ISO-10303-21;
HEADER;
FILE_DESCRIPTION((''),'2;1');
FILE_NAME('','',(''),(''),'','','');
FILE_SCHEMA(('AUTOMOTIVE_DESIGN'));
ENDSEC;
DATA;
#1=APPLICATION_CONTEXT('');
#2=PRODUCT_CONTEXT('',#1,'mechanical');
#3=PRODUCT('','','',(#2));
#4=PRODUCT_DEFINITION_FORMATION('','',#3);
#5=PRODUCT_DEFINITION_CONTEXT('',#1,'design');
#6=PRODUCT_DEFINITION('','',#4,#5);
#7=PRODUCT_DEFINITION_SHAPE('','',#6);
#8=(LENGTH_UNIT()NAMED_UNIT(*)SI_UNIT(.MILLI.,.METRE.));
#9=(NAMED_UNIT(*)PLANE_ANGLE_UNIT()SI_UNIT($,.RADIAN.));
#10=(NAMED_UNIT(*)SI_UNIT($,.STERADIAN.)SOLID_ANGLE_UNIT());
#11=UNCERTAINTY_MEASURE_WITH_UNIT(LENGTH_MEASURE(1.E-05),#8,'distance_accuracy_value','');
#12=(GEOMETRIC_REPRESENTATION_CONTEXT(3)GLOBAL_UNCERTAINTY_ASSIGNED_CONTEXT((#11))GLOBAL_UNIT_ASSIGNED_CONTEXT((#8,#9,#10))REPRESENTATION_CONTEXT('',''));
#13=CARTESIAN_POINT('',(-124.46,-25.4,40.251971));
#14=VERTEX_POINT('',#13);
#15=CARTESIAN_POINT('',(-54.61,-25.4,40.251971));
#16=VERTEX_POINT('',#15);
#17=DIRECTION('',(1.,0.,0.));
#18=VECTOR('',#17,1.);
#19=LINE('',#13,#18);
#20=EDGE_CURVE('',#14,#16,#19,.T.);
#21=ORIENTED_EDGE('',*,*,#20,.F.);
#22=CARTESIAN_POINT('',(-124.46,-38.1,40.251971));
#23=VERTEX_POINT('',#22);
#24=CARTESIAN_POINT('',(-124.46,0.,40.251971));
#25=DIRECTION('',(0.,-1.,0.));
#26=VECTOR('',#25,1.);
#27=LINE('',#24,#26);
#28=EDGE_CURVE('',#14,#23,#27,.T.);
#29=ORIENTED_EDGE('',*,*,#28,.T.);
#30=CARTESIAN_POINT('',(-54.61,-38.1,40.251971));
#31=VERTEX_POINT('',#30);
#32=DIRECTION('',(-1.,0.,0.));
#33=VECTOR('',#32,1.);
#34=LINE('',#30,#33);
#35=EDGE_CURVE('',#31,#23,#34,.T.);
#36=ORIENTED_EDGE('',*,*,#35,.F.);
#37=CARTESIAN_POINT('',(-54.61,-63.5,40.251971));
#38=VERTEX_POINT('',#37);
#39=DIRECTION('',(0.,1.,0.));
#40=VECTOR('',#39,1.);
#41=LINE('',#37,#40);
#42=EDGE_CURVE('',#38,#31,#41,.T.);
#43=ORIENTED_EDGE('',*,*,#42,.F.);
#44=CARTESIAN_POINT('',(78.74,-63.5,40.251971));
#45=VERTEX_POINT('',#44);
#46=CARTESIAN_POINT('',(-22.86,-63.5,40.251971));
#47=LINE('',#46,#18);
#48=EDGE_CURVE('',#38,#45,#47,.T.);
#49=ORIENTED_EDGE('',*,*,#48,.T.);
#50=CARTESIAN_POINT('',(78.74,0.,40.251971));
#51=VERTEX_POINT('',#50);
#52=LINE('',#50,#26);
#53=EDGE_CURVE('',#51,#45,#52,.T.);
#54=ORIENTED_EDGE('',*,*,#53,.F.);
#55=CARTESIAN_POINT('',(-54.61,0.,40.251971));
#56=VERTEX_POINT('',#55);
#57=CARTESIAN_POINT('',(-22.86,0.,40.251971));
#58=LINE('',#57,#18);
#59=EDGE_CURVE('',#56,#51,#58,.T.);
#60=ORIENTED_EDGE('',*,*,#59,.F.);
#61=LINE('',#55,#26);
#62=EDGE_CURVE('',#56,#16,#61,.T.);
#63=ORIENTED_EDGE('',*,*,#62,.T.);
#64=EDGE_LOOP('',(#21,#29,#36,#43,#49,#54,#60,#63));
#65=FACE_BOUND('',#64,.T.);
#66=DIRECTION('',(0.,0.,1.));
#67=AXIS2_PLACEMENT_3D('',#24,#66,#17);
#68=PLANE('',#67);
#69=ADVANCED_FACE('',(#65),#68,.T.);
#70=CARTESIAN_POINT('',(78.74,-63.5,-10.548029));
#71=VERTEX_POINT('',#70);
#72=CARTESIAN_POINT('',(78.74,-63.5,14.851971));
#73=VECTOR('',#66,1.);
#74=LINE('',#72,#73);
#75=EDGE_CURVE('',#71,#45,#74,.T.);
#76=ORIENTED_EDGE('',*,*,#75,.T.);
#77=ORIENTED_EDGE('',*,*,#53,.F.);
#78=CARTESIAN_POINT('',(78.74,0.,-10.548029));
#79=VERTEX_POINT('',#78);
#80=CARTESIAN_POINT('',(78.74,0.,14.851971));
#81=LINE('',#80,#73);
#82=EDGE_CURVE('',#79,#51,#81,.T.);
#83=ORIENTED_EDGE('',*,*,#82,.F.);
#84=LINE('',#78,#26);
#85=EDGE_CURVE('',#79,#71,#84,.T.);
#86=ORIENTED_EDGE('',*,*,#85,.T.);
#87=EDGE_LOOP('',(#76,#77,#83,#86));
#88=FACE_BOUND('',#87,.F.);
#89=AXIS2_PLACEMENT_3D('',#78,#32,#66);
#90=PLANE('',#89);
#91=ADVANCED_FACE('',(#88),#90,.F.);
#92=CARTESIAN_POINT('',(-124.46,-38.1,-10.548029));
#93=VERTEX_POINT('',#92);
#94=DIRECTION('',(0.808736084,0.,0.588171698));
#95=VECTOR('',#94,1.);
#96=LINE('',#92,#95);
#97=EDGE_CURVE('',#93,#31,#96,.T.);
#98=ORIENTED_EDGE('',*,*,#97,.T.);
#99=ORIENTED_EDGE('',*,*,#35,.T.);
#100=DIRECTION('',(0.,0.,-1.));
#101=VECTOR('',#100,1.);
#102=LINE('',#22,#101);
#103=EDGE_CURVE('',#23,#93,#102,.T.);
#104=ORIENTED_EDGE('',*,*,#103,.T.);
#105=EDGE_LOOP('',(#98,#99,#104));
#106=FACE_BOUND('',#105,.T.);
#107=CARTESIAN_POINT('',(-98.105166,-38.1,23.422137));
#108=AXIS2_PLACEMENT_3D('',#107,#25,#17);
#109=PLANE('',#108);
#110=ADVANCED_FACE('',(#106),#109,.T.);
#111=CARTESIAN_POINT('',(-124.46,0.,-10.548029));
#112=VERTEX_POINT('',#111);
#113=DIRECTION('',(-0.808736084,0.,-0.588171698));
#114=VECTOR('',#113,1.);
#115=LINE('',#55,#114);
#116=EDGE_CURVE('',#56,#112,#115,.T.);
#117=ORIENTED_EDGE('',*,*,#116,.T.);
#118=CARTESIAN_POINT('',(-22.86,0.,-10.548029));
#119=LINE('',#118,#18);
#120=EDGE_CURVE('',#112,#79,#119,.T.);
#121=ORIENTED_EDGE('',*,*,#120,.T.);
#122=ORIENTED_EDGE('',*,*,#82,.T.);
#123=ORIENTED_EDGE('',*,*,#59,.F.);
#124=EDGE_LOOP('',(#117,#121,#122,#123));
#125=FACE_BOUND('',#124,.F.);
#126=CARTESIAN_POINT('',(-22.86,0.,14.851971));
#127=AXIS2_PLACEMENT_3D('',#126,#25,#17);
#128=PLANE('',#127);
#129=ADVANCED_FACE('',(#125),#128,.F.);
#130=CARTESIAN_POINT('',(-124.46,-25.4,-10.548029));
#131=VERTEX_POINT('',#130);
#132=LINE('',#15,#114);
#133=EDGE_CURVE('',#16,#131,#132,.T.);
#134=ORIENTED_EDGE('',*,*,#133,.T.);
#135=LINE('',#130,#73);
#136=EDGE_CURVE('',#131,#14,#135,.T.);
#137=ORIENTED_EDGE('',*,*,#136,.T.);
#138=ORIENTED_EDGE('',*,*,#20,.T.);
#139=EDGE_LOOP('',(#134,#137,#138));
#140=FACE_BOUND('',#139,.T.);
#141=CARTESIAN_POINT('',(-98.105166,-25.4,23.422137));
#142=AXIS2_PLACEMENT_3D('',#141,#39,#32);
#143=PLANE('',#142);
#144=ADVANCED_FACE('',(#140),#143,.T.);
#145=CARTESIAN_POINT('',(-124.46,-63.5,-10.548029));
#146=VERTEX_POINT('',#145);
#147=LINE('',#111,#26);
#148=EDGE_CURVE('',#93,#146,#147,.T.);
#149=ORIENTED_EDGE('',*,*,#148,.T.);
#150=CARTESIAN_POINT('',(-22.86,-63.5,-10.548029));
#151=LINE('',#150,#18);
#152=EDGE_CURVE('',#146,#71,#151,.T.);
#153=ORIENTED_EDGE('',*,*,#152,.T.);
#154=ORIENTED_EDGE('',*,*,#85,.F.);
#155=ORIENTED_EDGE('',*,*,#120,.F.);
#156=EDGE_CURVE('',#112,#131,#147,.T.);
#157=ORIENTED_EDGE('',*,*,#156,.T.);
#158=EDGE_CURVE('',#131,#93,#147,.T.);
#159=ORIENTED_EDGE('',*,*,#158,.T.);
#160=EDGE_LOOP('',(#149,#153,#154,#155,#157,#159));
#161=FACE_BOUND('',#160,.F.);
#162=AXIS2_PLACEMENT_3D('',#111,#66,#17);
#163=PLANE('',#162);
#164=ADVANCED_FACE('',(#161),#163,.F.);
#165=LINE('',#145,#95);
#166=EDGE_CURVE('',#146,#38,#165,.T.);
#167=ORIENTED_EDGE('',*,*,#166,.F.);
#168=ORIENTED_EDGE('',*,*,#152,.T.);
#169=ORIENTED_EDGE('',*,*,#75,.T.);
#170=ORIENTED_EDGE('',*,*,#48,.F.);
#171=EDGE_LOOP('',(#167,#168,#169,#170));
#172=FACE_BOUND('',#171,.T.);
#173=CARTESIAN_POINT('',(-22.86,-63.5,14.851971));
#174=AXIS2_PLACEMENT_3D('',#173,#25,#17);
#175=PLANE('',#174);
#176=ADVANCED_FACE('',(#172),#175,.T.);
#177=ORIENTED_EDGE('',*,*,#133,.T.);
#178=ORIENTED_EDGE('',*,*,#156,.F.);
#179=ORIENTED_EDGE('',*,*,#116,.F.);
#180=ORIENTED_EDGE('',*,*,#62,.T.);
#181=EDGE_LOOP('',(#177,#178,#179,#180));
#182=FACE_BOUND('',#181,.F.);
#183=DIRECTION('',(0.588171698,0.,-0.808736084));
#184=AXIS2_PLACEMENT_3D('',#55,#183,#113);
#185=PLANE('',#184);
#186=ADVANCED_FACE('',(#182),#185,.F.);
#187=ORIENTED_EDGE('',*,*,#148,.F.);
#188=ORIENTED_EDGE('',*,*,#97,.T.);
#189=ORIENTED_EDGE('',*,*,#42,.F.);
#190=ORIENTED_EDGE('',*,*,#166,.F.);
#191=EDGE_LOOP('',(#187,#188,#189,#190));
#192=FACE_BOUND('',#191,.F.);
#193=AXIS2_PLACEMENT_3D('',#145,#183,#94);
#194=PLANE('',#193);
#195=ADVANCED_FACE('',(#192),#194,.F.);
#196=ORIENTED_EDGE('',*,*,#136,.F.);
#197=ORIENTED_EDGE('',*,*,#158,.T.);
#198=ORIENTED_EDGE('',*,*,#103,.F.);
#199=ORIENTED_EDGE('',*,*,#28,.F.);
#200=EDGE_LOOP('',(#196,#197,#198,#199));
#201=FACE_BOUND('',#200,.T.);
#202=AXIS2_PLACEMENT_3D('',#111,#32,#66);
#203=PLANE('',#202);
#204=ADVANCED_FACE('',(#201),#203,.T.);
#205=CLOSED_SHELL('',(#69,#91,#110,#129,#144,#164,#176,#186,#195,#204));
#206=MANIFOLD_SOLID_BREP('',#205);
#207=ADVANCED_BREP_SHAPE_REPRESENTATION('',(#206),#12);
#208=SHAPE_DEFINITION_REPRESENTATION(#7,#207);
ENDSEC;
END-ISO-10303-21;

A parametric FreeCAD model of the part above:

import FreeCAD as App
import Part
import Sketcher

V = App.Vector
Q = App.Units.Quantity


def add_polygon(sketch, points):
    """Adds a closed chain of lines whose ends are joined by coincident constraints."""
    first, n = sketch.GeometryCount, len(points)
    for a, b in zip(points, points[1:] + points[:1]):
        sketch.addGeometry(Part.LineSegment(App.Vector(*a, 0), App.Vector(*b, 0)), False)
    for i in range(n):
        sketch.addConstraint(Sketcher.Constraint("Coincident", first + i, 2, first + (i + 1) % n, 1))

doc = App.newDocument("Part")
body = doc.addObject("PartDesign::Body", "Body")

sketch1 = body.newObject("Sketcher::SketchObject", "Sketch")
sketch1.AttachmentSupport = (doc.getObject("XZ_Plane"), [""])
sketch1.MapMode = "FlatFace"
add_polygon(sketch1, [(-124, 40), (-124, -11), (79, -11), (79, 40)])
sketch1.addConstraint(Sketcher.Constraint("Vertical", 0))
sketch1.addConstraint(Sketcher.Constraint("Horizontal", 1))
sketch1.addConstraint(Sketcher.Constraint("Vertical", 2))
sketch1.addConstraint(Sketcher.Constraint("Horizontal", 3))
sketch1.addConstraint(Sketcher.Constraint("DistanceX", 1, 1, 1, 2, Q("8 in")))
sketch1.addConstraint(Sketcher.Constraint("DistanceY", 0, 2, 0, 1, Q("2 in")))
sketch1.addConstraint(Sketcher.Constraint("DistanceX", 0, 2, -1, 1, Q("4.9 in")))
sketch1.addConstraint(Sketcher.Constraint("DistanceY", 0, 2, -1, 1, 10.548029))
pad1 = body.newObject("PartDesign::Pad", "Pad")
pad1.Profile = sketch1
pad1.Length = Q("2.5 in")

sketch2 = body.newObject("Sketcher::SketchObject", "Sketch001")
sketch2.AttachmentSupport = (doc.getObject("XZ_Plane"), [""])
sketch2.MapMode = "FlatFace"
sketch2.AttachmentOffset = App.Placement(V(0, 0, 2.5 * 25.4), App.Rotation())
add_polygon(sketch2, [(-124, 40), (-124, -11), (-55, 40)])
sketch2.addConstraint(Sketcher.Constraint("Vertical", 0))
sketch2.addConstraint(Sketcher.Constraint("Horizontal", 2))
sketch2.addConstraint(Sketcher.Constraint("DistanceY", 0, 2, 0, 1, Q("2 in")))
sketch2.addConstraint(Sketcher.Constraint("DistanceX", 2, 2, 2, 1, Q("2.75 in")))
sketch2.addConstraint(Sketcher.Constraint("DistanceX", 0, 2, -1, 1, Q("4.9 in")))
sketch2.addConstraint(Sketcher.Constraint("DistanceY", 0, 2, -1, 1, 10.548029))
pocket1 = body.newObject("PartDesign::Pocket", "Pocket")
pocket1.Profile = sketch2
pocket1.Length = Q("1 in")

sketch3 = body.newObject("Sketcher::SketchObject", "Sketch002")
sketch3.AttachmentSupport = (doc.getObject("XZ_Plane"), [""])
sketch3.MapMode = "FlatFace"
add_polygon(sketch3, [(-55, 40), (-124, -11), (-124, 40)])
sketch3.addConstraint(Sketcher.Constraint("Vertical", 1))
sketch3.addConstraint(Sketcher.Constraint("Horizontal", 2))
sketch3.addConstraint(Sketcher.Constraint("DistanceY", 1, 1, 1, 2, Q("2 in")))
sketch3.addConstraint(Sketcher.Constraint("DistanceX", 2, 1, 2, 2, Q("2.75 in")))
sketch3.addConstraint(Sketcher.Constraint("DistanceX", 0, 2, -1, 1, Q("4.9 in")))
sketch3.addConstraint(Sketcher.Constraint("DistanceY", 0, 2, -1, 1, 10.548029))
pocket2 = body.newObject("PartDesign::Pocket", "Pocket001")
pocket2.Profile = sketch3
pocket2.Length = Q("1 in")
pocket2.Reversed = True

doc.recompute()
